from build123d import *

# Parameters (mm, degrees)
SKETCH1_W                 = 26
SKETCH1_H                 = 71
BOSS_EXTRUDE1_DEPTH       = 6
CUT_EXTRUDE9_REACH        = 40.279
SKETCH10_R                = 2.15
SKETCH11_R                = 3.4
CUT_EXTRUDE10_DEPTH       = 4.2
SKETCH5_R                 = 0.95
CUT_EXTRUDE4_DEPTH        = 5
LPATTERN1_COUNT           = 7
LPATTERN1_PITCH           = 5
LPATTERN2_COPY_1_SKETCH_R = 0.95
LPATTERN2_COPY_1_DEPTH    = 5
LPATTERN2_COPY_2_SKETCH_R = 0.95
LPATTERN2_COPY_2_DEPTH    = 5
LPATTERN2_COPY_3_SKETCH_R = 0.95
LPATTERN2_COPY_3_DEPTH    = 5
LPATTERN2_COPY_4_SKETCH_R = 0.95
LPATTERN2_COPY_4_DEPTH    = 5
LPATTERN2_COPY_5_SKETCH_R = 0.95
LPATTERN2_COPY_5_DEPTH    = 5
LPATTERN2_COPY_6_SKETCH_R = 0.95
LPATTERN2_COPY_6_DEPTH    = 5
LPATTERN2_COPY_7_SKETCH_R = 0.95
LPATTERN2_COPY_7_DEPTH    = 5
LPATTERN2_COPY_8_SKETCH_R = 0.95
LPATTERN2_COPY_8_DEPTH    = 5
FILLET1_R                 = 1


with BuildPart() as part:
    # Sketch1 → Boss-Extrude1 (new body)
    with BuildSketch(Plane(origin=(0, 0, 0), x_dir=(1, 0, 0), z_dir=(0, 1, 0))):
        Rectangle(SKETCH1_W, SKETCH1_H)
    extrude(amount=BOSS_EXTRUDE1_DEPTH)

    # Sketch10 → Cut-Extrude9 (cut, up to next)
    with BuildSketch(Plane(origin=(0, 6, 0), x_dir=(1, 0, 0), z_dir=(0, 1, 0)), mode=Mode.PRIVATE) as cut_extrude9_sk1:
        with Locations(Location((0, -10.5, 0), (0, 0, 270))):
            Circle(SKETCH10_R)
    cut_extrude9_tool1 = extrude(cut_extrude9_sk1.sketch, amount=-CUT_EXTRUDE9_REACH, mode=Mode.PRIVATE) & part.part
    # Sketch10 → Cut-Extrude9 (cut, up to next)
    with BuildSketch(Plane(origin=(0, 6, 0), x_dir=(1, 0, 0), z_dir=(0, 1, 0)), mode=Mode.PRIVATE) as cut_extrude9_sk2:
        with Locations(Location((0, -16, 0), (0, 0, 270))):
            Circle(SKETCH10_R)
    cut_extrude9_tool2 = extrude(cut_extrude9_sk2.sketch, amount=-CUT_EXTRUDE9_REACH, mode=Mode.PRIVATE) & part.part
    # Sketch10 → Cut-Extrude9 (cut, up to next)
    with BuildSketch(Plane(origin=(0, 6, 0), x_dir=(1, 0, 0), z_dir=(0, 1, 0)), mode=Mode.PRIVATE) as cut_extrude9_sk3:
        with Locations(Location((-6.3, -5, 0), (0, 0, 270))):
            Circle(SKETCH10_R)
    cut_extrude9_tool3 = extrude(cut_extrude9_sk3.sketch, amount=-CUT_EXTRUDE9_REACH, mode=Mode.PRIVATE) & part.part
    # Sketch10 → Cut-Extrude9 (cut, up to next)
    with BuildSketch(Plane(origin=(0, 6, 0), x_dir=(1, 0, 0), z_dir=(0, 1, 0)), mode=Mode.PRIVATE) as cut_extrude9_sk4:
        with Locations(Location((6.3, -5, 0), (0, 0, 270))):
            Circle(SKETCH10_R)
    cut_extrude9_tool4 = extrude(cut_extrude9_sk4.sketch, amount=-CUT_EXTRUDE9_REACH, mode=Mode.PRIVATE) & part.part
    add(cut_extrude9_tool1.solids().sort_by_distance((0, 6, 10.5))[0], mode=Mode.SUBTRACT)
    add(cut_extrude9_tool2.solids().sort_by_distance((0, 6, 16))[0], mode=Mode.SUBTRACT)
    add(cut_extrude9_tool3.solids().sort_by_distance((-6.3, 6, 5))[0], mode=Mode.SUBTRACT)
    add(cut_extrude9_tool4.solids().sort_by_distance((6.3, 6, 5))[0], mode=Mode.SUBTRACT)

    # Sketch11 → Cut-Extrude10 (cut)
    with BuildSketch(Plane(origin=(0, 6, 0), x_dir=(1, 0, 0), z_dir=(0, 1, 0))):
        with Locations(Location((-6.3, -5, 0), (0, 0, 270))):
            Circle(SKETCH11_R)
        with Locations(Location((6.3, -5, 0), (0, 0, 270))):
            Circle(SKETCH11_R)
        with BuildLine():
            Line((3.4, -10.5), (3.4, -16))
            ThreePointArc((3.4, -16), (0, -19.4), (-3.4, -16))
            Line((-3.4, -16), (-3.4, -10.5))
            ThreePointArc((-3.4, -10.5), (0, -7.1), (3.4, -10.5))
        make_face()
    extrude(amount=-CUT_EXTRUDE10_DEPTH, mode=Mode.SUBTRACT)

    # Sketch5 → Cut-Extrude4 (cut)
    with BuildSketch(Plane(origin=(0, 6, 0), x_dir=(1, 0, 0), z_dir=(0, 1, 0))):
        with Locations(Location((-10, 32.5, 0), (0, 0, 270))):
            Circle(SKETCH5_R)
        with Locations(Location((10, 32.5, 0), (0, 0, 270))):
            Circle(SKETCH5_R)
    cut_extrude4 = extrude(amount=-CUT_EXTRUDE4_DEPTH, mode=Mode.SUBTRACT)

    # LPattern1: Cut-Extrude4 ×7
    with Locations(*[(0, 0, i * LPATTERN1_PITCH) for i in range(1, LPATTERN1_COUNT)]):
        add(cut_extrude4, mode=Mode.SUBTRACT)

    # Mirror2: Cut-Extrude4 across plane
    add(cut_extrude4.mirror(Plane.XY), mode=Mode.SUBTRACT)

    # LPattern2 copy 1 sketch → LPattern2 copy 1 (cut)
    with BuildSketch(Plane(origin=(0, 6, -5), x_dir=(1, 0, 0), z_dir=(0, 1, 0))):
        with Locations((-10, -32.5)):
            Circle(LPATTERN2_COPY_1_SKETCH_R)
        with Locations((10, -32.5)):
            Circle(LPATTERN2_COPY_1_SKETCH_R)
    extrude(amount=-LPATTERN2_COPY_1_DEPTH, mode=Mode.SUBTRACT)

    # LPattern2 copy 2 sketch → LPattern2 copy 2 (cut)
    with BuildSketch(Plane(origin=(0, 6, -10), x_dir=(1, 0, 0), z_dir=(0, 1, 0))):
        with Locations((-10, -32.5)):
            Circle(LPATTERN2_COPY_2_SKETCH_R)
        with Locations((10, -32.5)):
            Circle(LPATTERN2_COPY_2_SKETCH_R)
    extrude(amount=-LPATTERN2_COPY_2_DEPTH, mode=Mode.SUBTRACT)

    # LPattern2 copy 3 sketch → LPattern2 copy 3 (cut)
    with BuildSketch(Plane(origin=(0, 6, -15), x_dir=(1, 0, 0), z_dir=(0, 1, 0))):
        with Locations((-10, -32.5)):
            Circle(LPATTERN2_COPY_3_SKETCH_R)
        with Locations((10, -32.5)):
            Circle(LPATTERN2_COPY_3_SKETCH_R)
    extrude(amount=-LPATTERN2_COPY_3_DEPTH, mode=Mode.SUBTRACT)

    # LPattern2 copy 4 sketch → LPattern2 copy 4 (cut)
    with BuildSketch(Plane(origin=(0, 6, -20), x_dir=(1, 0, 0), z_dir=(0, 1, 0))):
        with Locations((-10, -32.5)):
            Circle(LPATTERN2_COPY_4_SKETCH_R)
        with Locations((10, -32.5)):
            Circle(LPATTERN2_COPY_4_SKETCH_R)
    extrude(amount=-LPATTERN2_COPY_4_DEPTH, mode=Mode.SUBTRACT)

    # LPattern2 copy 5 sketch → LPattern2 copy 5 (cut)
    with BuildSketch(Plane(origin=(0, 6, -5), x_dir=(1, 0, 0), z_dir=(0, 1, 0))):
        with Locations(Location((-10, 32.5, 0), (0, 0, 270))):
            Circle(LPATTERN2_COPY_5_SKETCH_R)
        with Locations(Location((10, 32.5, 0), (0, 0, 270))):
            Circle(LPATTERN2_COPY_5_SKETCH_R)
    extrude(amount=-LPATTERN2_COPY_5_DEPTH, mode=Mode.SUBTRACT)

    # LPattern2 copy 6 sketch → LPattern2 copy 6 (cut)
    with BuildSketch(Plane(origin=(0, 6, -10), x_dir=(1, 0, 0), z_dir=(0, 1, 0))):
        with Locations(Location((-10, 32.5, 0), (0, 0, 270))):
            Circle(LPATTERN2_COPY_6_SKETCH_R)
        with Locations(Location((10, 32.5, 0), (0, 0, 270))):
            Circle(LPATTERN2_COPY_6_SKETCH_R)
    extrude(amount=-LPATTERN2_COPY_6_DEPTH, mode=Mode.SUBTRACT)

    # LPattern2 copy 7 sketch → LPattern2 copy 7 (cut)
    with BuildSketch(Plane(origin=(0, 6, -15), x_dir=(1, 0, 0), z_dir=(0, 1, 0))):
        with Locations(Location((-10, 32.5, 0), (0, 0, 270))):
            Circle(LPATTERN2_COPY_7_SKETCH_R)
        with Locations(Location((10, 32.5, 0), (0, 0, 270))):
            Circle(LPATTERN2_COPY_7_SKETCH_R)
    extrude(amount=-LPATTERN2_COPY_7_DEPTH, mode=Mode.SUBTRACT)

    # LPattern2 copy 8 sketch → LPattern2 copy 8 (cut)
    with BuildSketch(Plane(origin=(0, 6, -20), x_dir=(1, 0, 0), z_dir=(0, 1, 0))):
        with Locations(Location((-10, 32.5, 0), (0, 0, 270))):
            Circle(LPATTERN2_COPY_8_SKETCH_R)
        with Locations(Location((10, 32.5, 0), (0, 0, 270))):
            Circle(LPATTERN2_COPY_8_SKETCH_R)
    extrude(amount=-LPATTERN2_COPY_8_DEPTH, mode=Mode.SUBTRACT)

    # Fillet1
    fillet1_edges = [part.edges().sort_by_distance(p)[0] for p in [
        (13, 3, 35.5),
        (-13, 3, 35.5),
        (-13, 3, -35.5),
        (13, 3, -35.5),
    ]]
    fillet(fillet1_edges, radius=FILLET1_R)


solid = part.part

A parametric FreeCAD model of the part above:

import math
import FreeCAD as App
import Part
import Sketcher

V = App.Vector
Q = App.Units.Quantity


def edges_at(feature, points):
    """Names of the edges that pass closest to the given points."""
    edges = feature.Shape.Edges
    near = lambda p: min(range(len(edges)), key=lambda i: edges[i].distToShape(Part.Vertex(*p))[0])
    return sorted({f"Edge{near(p) + 1}" for p in points})

doc = App.newDocument("Part")
body = doc.addObject("PartDesign::Body", "Body")

# Sketch on XZ plane
sketch1 = body.newObject("Sketcher::SketchObject", "Sketch")
sketch1.AttachmentSupport = (doc.getObject("XZ_Plane"), [""])
sketch1.MapMode = "FlatFace"
sketch1.addGeometry([
    Part.LineSegment(V(-13, -35.5, 0), V(-13, 35.5, 0)),
    Part.LineSegment(V(-13, 35.5, 0), V(13, 35.5, 0)),
    Part.LineSegment(V(13, 35.5, 0), V(13, -35.5, 0)),
    Part.LineSegment(V(13, -35.5, 0), V(-13, -35.5, 0)),
], False)
sketch1.addConstraint([
    Sketcher.Constraint("Coincident", 0, 2, 1, 1),
    Sketcher.Constraint("Coincident", 1, 2, 2, 1),
    Sketcher.Constraint("Coincident", 2, 2, 3, 1),
    Sketcher.Constraint("Coincident", 3, 2, 0, 1),
    Sketcher.Constraint("Vertical", 0),
    Sketcher.Constraint("Horizontal", 1),
    Sketcher.Constraint("Vertical", 2),
    Sketcher.Constraint("Horizontal", 3),
    Sketcher.Constraint("Symmetric", 0, 2, 2, 2, -1, 1),
    Sketcher.Constraint("DistanceX", 1, 1, 1, 2, Q("26 mm")),
    Sketcher.Constraint("DistanceY", 0, 1, 0, 2, Q("71 mm")),
])
pad1 = body.newObject("PartDesign::Pad", "Pad")
pad1.Profile = sketch1
pad1.Length = 6
pad1.Reversed = True

# Sketch on XZ plane
sketch2 = body.newObject("Sketcher::SketchObject", "Sketch001")
sketch2.AttachmentSupport = (doc.getObject("XZ_Plane"), [""])
sketch2.MapMode = "FlatFace"
sketch2.AttachmentOffset = App.Placement(V(0, 0, -6), App.Rotation())
sketch2.addGeometry(Part.Circle(V(0, 10.5, 0), V(0, 0, 1), 2.15), False)
sketch2.addConstraint([
    Sketcher.Constraint("PointOnObject", 0, 3, -2),
    Sketcher.Constraint("Diameter", 0, Q("4.3 mm")),
    Sketcher.Constraint("DistanceY", -1, 1, 0, 3, Q("10.5 mm")),
])
pocket1 = body.newObject("PartDesign::Pocket", "Pocket")
pocket1.Profile = sketch2
pocket1.Type = "UpToFirst"
pocket1.Reversed = True

# Sketch on XZ plane
sketch3 = body.newObject("Sketcher::SketchObject", "Sketch002")
sketch3.AttachmentSupport = (doc.getObject("XZ_Plane"), [""])
sketch3.MapMode = "FlatFace"
sketch3.AttachmentOffset = App.Placement(V(0, 0, -6), App.Rotation())
sketch3.addGeometry(Part.Circle(V(0, 16, 0), V(0, 0, 1), 2.15), False)
sketch3.addConstraint([
    Sketcher.Constraint("PointOnObject", 0, 3, -2),
    Sketcher.Constraint("Diameter", 0, Q("4.3 mm")),
    Sketcher.Constraint("DistanceY", -1, 1, 0, 3, Q("16 mm")),
])
pocket2 = body.newObject("PartDesign::Pocket", "Pocket001")
pocket2.Profile = sketch3
pocket2.Type = "UpToFirst"
pocket2.Reversed = True

# Sketch on XZ plane
sketch4 = body.newObject("Sketcher::SketchObject", "Sketch003")
sketch4.AttachmentSupport = (doc.getObject("XZ_Plane"), [""])
sketch4.MapMode = "FlatFace"
sketch4.AttachmentOffset = App.Placement(V(0, 0, -6), App.Rotation())
sketch4.addGeometry(Part.Circle(V(-6.3, 5, 0), V(0, 0, 1), 2.15), False)
sketch4.addConstraint([
    Sketcher.Constraint("Diameter", 0, Q("4.3 mm")),
    Sketcher.Constraint("DistanceY", -1, 1, 0, 3, Q("5 mm")),
    Sketcher.Constraint("DistanceX", 0, 3, -1, 1, Q("6.3 mm")),
])
pocket3 = body.newObject("PartDesign::Pocket", "Pocket002")
pocket3.Profile = sketch4
pocket3.Type = "UpToFirst"
pocket3.Reversed = True

# Sketch on XZ plane
sketch5 = body.newObject("Sketcher::SketchObject", "Sketch004")
sketch5.AttachmentSupport = (doc.getObject("XZ_Plane"), [""])
sketch5.MapMode = "FlatFace"
sketch5.AttachmentOffset = App.Placement(V(0, 0, -6), App.Rotation())
sketch5.addGeometry(Part.Circle(V(6.3, 5, 0), V(0, 0, 1), 2.15), False)
sketch5.addConstraint([
    Sketcher.Constraint("Diameter", 0, Q("4.3 mm")),
    Sketcher.Constraint("DistanceY", -1, 1, 0, 3, Q("5 mm")),
    Sketcher.Constraint("DistanceX", -1, 1, 0, 3, Q("6.3 mm")),
])
pocket4 = body.newObject("PartDesign::Pocket", "Pocket003")
pocket4.Profile = sketch5
pocket4.Type = "UpToFirst"
pocket4.Reversed = True

# Sketch on XZ plane
sketch6 = body.newObject("Sketcher::SketchObject", "Sketch005")
sketch6.AttachmentSupport = (doc.getObject("XZ_Plane"), [""])
sketch6.MapMode = "FlatFace"
sketch6.AttachmentOffset = App.Placement(V(0, 0, -6), App.Rotation())
sketch6.addGeometry([
    Part.Circle(V(-6.3, 5, 0), V(0, 0, 1), 3.4),  # 0
    Part.Circle(V(6.3, 5, 0), V(0, 0, 1), 3.4),  # 1
    Part.LineSegment(V(3.4, 16, 0), V(3.4, 10.5, 0)),  # 2
    Part.ArcOfCircle(Part.Circle(V(0, 10.5, 0), V(0, 0, 1), 3.4), math.radians(180), math.radians(360)),  # 3
    Part.LineSegment(V(-3.4, 10.5, 0), V(-3.4, 16, 0)),  # 4
    Part.ArcOfCircle(Part.Circle(V(0, 16, 0), V(0, 0, 1), 3.4), math.radians(0), math.radians(180)),  # 5
], False)
sketch6.addConstraint([
    Sketcher.Constraint("Tangent", 2, 2, 3, 2),
    Sketcher.Constraint("Tangent", 3, 1, 4, 1),
    Sketcher.Constraint("Tangent", 4, 2, 5, 2),
    Sketcher.Constraint("Tangent", 5, 1, 2, 1),
    Sketcher.Constraint("Vertical", 2),
    Sketcher.Constraint("Vertical", 4),
    Sketcher.Constraint("Equal", 0, 1),
    Sketcher.Constraint("Equal", 1, 3),
    Sketcher.Constraint("Symmetric", 0, 3, 1, 3, -2),
    Sketcher.Constraint("PointOnObject", 3, 3, -2),
    Sketcher.Constraint("Diameter", 0, Q("6.8 mm")),
    Sketcher.Constraint("DistanceY", 2, 2, 2, 1, Q("5.5 mm")),
    Sketcher.Constraint("DistanceY", -1, 1, 0, 3, Q("5 mm")),
    Sketcher.Constraint("DistanceY", -1, 1, 5, 3, Q("16 mm")),
    Sketcher.Constraint("DistanceX", 0, 3, -1, 1, Q("6.3 mm")),
])
pocket5 = body.newObject("PartDesign::Pocket", "Pocket004")
pocket5.Profile = sketch6
pocket5.Length = 4.2
pocket5.Reversed = True

# Sketch on XZ plane
sketch7 = body.newObject("Sketcher::SketchObject", "Sketch006")
sketch7.AttachmentSupport = (doc.getObject("XZ_Plane"), [""])
sketch7.MapMode = "FlatFace"
sketch7.AttachmentOffset = App.Placement(V(0, 0, -6), App.Rotation())
sketch7.addGeometry([
    Part.Circle(V(-10, -32.5, 0), V(0, 0, 1), 0.95),
    Part.Circle(V(10, -32.5, 0), V(0, 0, 1), 0.95),
], False)
sketch7.addConstraint([
    Sketcher.Constraint("Equal", 0, 1),
    Sketcher.Constraint("Symmetric", 0, 3, 1, 3, -2),
    Sketcher.Constraint("Diameter", 0, Q("1.9 mm")),
    Sketcher.Constraint("DistanceX", 0, 3, -1, 1, Q("10 mm")),
    Sketcher.Constraint("DistanceY", 0, 3, -1, 1, Q("32.5 mm")),
])
pocket6 = body.newObject("PartDesign::Pocket", "Pocket005")
pocket6.Profile = sketch7
pocket6.Length = 5
pocket6.Reversed = True
doc.recompute()

linearpattern = body.newObject("PartDesign::LinearPattern", "LinearPattern")
linearpattern.Originals = [pocket6]
linearpattern.Direction = (doc.getObject("Z_Axis"), [""])
linearpattern.Mode = "offset"
linearpattern.Offset = 5
linearpattern.Occurrences = 7
body.Tip = linearpattern
doc.recompute()

mirrored = body.newObject("PartDesign::Mirrored", "Mirrored")
mirrored.Originals = [pocket6]
mirrored.MirrorPlane = (doc.getObject("XY_Plane"), [""])
body.Tip = mirrored

# Sketch on XZ plane
sketch8 = body.newObject("Sketcher::SketchObject", "Sketch007")
sketch8.AttachmentSupport = (doc.getObject("XZ_Plane"), [""])
sketch8.MapMode = "FlatFace"
sketch8.AttachmentOffset = App.Placement(V(0, 0, -6), App.Rotation())
sketch8.addGeometry([
    Part.Circle(V(-10, 27.5, 0), V(0, 0, 1), 0.95),
    Part.Circle(V(10, 27.5, 0), V(0, 0, 1), 0.95),
], False)
sketch8.addConstraint([
    Sketcher.Constraint("Equal", 0, 1),
    Sketcher.Constraint("Symmetric", 0, 3, 1, 3, -2),
    Sketcher.Constraint("Diameter", 0, Q("1.9 mm")),
    Sketcher.Constraint("DistanceX", 0, 3, -1, 1, Q("10 mm")),
    Sketcher.Constraint("DistanceY", -1, 1, 0, 3, Q("27.5 mm")),
])
pocket7 = body.newObject("PartDesign::Pocket", "Pocket006")
pocket7.Profile = sketch8
pocket7.Length = 5
pocket7.Reversed = True

# Sketch on XZ plane
sketch9 = body.newObject("Sketcher::SketchObject", "Sketch008")
sketch9.AttachmentSupport = (doc.getObject("XZ_Plane"), [""])
sketch9.MapMode = "FlatFace"
sketch9.AttachmentOffset = App.Placement(V(0, 0, -6), App.Rotation())
sketch9.addGeometry([
    Part.Circle(V(-10, 22.5, 0), V(0, 0, 1), 0.95),
    Part.Circle(V(10, 22.5, 0), V(0, 0, 1), 0.95),
], False)
sketch9.addConstraint([
    Sketcher.Constraint("Equal", 0, 1),
    Sketcher.Constraint("Symmetric", 0, 3, 1, 3, -2),
    Sketcher.Constraint("Diameter", 0, Q("1.9 mm")),
    Sketcher.Constraint("DistanceX", 0, 3, -1, 1, Q("10 mm")),
    Sketcher.Constraint("DistanceY", -1, 1, 0, 3, Q("22.5 mm")),
])
pocket8 = body.newObject("PartDesign::Pocket", "Pocket007")
pocket8.Profile = sketch9
pocket8.Length = 5
pocket8.Reversed = True

# Sketch on XZ plane
sketch10 = body.newObject("Sketcher::SketchObject", "Sketch009")
sketch10.AttachmentSupport = (doc.getObject("XZ_Plane"), [""])
sketch10.MapMode = "FlatFace"
sketch10.AttachmentOffset = App.Placement(V(0, 0, -6), App.Rotation())
sketch10.addGeometry([
    Part.Circle(V(-10, 17.5, 0), V(0, 0, 1), 0.95),
    Part.Circle(V(10, 17.5, 0), V(0, 0, 1), 0.95),
], False)
sketch10.addConstraint([
    Sketcher.Constraint("Equal", 0, 1),
    Sketcher.Constraint("Symmetric", 0, 3, 1, 3, -2),
    Sketcher.Constraint("Diameter", 0, Q("1.9 mm")),
    Sketcher.Constraint("DistanceX", 0, 3, -1, 1, Q("10 mm")),
    Sketcher.Constraint("DistanceY", -1, 1, 0, 3, Q("17.5 mm")),
])
pocket9 = body.newObject("PartDesign::Pocket", "Pocket008")
pocket9.Profile = sketch10
pocket9.Length = 5
pocket9.Reversed = True

# Sketch on XZ plane
sketch11 = body.newObject("Sketcher::SketchObject", "Sketch010")
sketch11.AttachmentSupport = (doc.getObject("XZ_Plane"), [""])
sketch11.MapMode = "FlatFace"
sketch11.AttachmentOffset = App.Placement(V(0, 0, -6), App.Rotation())
sketch11.addGeometry([
    Part.Circle(V(-10, 12.5, 0), V(0, 0, 1), 0.95),
    Part.Circle(V(10, 12.5, 0), V(0, 0, 1), 0.95),
], False)
sketch11.addConstraint([
    Sketcher.Constraint("Equal", 0, 1),
    Sketcher.Constraint("Symmetric", 0, 3, 1, 3, -2),
    Sketcher.Constraint("Diameter", 0, Q("1.9 mm")),
    Sketcher.Constraint("DistanceX", 0, 3, -1, 1, Q("10 mm")),
    Sketcher.Constraint("DistanceY", -1, 1, 0, 3, Q("12.5 mm")),
])
pocket10 = body.newObject("PartDesign::Pocket", "Pocket009")
pocket10.Profile = sketch11
pocket10.Length = 5
pocket10.Reversed = True

# Sketch on XZ plane
sketch12 = body.newObject("Sketcher::SketchObject", "Sketch011")
sketch12.AttachmentSupport = (doc.getObject("XZ_Plane"), [""])
sketch12.MapMode = "FlatFace"
sketch12.AttachmentOffset = App.Placement(V(0, 0, -6), App.Rotation())
sketch12.addGeometry([
    Part.Circle(V(-10, -37.5, 0), V(0, 0, 1), 0.95),
    Part.Circle(V(10, -37.5, 0), V(0, 0, 1), 0.95),
], False)
sketch12.addConstraint([
    Sketcher.Constraint("Equal", 0, 1),
    Sketcher.Constraint("Symmetric", 0, 3, 1, 3, -2),
    Sketcher.Constraint("Diameter", 0, Q("1.9 mm")),
    Sketcher.Constraint("DistanceX", 0, 3, -1, 1, Q("10 mm")),
    Sketcher.Constraint("DistanceY", 0, 3, -1, 1, Q("37.5 mm")),
])
pocket11 = body.newObject("PartDesign::Pocket", "Pocket010")
pocket11.Profile = sketch12
pocket11.Length = 5
pocket11.Reversed = True

# Sketch on XZ plane
sketch13 = body.newObject("Sketcher::SketchObject", "Sketch012")
sketch13.AttachmentSupport = (doc.getObject("XZ_Plane"), [""])
sketch13.MapMode = "FlatFace"
sketch13.AttachmentOffset = App.Placement(V(0, 0, -6), App.Rotation())
sketch13.addGeometry([
    Part.Circle(V(-10, -42.5, 0), V(0, 0, 1), 0.95),
    Part.Circle(V(10, -42.5, 0), V(0, 0, 1), 0.95),
], False)
sketch13.addConstraint([
    Sketcher.Constraint("Equal", 0, 1),
    Sketcher.Constraint("Symmetric", 0, 3, 1, 3, -2),
    Sketcher.Constraint("Diameter", 0, Q("1.9 mm")),
    Sketcher.Constraint("DistanceX", 0, 3, -1, 1, Q("10 mm")),
    Sketcher.Constraint("DistanceY", 0, 3, -1, 1, Q("42.5 mm")),
])
pocket12 = body.newObject("PartDesign::Pocket", "Pocket011")
pocket12.Profile = sketch13
pocket12.Length = 5
pocket12.Reversed = True

# Sketch on XZ plane
sketch14 = body.newObject("Sketcher::SketchObject", "Sketch013")
sketch14.AttachmentSupport = (doc.getObject("XZ_Plane"), [""])
sketch14.MapMode = "FlatFace"
sketch14.AttachmentOffset = App.Placement(V(0, 0, -6), App.Rotation())
sketch14.addGeometry([
    Part.Circle(V(-10, -47.5, 0), V(0, 0, 1), 0.95),
    Part.Circle(V(10, -47.5, 0), V(0, 0, 1), 0.95),
], False)
sketch14.addConstraint([
    Sketcher.Constraint("Equal", 0, 1),
    Sketcher.Constraint("Symmetric", 0, 3, 1, 3, -2),
    Sketcher.Constraint("Diameter", 0, Q("1.9 mm")),
    Sketcher.Constraint("DistanceX", 0, 3, -1, 1, Q("10 mm")),
    Sketcher.Constraint("DistanceY", 0, 3, -1, 1, Q("47.5 mm")),
])
pocket13 = body.newObject("PartDesign::Pocket", "Pocket012")
pocket13.Profile = sketch14
pocket13.Length = 5
pocket13.Reversed = True

# Sketch on XZ plane
sketch15 = body.newObject("Sketcher::SketchObject", "Sketch014")
sketch15.AttachmentSupport = (doc.getObject("XZ_Plane"), [""])
sketch15.MapMode = "FlatFace"
sketch15.AttachmentOffset = App.Placement(V(0, 0, -6), App.Rotation())
sketch15.addGeometry([
    Part.Circle(V(-10, -52.5, 0), V(0, 0, 1), 0.95),
    Part.Circle(V(10, -52.5, 0), V(0, 0, 1), 0.95),
], False)
sketch15.addConstraint([
    Sketcher.Constraint("Equal", 0, 1),
    Sketcher.Constraint("Symmetric", 0, 3, 1, 3, -2),
    Sketcher.Constraint("Diameter", 0, Q("1.9 mm")),
    Sketcher.Constraint("DistanceX", 0, 3, -1, 1, Q("10 mm")),
    Sketcher.Constraint("DistanceY", 0, 3, -1, 1, Q("52.5 mm")),
])
pocket14 = body.newObject("PartDesign::Pocket", "Pocket013")
pocket14.Profile = sketch15
pocket14.Length = 5
pocket14.Reversed = True
doc.recompute()

fillet = body.newObject("PartDesign::Fillet", "Fillet")
fillet.Base = (pocket14, edges_at(pocket14, [
    (13, 3, 35.5),
    (-13, 3, 35.5),
    (-13, 3, -35.5),
    (13, 3, -35.5),
]))
fillet.Radius = 1

doc.recompute()
